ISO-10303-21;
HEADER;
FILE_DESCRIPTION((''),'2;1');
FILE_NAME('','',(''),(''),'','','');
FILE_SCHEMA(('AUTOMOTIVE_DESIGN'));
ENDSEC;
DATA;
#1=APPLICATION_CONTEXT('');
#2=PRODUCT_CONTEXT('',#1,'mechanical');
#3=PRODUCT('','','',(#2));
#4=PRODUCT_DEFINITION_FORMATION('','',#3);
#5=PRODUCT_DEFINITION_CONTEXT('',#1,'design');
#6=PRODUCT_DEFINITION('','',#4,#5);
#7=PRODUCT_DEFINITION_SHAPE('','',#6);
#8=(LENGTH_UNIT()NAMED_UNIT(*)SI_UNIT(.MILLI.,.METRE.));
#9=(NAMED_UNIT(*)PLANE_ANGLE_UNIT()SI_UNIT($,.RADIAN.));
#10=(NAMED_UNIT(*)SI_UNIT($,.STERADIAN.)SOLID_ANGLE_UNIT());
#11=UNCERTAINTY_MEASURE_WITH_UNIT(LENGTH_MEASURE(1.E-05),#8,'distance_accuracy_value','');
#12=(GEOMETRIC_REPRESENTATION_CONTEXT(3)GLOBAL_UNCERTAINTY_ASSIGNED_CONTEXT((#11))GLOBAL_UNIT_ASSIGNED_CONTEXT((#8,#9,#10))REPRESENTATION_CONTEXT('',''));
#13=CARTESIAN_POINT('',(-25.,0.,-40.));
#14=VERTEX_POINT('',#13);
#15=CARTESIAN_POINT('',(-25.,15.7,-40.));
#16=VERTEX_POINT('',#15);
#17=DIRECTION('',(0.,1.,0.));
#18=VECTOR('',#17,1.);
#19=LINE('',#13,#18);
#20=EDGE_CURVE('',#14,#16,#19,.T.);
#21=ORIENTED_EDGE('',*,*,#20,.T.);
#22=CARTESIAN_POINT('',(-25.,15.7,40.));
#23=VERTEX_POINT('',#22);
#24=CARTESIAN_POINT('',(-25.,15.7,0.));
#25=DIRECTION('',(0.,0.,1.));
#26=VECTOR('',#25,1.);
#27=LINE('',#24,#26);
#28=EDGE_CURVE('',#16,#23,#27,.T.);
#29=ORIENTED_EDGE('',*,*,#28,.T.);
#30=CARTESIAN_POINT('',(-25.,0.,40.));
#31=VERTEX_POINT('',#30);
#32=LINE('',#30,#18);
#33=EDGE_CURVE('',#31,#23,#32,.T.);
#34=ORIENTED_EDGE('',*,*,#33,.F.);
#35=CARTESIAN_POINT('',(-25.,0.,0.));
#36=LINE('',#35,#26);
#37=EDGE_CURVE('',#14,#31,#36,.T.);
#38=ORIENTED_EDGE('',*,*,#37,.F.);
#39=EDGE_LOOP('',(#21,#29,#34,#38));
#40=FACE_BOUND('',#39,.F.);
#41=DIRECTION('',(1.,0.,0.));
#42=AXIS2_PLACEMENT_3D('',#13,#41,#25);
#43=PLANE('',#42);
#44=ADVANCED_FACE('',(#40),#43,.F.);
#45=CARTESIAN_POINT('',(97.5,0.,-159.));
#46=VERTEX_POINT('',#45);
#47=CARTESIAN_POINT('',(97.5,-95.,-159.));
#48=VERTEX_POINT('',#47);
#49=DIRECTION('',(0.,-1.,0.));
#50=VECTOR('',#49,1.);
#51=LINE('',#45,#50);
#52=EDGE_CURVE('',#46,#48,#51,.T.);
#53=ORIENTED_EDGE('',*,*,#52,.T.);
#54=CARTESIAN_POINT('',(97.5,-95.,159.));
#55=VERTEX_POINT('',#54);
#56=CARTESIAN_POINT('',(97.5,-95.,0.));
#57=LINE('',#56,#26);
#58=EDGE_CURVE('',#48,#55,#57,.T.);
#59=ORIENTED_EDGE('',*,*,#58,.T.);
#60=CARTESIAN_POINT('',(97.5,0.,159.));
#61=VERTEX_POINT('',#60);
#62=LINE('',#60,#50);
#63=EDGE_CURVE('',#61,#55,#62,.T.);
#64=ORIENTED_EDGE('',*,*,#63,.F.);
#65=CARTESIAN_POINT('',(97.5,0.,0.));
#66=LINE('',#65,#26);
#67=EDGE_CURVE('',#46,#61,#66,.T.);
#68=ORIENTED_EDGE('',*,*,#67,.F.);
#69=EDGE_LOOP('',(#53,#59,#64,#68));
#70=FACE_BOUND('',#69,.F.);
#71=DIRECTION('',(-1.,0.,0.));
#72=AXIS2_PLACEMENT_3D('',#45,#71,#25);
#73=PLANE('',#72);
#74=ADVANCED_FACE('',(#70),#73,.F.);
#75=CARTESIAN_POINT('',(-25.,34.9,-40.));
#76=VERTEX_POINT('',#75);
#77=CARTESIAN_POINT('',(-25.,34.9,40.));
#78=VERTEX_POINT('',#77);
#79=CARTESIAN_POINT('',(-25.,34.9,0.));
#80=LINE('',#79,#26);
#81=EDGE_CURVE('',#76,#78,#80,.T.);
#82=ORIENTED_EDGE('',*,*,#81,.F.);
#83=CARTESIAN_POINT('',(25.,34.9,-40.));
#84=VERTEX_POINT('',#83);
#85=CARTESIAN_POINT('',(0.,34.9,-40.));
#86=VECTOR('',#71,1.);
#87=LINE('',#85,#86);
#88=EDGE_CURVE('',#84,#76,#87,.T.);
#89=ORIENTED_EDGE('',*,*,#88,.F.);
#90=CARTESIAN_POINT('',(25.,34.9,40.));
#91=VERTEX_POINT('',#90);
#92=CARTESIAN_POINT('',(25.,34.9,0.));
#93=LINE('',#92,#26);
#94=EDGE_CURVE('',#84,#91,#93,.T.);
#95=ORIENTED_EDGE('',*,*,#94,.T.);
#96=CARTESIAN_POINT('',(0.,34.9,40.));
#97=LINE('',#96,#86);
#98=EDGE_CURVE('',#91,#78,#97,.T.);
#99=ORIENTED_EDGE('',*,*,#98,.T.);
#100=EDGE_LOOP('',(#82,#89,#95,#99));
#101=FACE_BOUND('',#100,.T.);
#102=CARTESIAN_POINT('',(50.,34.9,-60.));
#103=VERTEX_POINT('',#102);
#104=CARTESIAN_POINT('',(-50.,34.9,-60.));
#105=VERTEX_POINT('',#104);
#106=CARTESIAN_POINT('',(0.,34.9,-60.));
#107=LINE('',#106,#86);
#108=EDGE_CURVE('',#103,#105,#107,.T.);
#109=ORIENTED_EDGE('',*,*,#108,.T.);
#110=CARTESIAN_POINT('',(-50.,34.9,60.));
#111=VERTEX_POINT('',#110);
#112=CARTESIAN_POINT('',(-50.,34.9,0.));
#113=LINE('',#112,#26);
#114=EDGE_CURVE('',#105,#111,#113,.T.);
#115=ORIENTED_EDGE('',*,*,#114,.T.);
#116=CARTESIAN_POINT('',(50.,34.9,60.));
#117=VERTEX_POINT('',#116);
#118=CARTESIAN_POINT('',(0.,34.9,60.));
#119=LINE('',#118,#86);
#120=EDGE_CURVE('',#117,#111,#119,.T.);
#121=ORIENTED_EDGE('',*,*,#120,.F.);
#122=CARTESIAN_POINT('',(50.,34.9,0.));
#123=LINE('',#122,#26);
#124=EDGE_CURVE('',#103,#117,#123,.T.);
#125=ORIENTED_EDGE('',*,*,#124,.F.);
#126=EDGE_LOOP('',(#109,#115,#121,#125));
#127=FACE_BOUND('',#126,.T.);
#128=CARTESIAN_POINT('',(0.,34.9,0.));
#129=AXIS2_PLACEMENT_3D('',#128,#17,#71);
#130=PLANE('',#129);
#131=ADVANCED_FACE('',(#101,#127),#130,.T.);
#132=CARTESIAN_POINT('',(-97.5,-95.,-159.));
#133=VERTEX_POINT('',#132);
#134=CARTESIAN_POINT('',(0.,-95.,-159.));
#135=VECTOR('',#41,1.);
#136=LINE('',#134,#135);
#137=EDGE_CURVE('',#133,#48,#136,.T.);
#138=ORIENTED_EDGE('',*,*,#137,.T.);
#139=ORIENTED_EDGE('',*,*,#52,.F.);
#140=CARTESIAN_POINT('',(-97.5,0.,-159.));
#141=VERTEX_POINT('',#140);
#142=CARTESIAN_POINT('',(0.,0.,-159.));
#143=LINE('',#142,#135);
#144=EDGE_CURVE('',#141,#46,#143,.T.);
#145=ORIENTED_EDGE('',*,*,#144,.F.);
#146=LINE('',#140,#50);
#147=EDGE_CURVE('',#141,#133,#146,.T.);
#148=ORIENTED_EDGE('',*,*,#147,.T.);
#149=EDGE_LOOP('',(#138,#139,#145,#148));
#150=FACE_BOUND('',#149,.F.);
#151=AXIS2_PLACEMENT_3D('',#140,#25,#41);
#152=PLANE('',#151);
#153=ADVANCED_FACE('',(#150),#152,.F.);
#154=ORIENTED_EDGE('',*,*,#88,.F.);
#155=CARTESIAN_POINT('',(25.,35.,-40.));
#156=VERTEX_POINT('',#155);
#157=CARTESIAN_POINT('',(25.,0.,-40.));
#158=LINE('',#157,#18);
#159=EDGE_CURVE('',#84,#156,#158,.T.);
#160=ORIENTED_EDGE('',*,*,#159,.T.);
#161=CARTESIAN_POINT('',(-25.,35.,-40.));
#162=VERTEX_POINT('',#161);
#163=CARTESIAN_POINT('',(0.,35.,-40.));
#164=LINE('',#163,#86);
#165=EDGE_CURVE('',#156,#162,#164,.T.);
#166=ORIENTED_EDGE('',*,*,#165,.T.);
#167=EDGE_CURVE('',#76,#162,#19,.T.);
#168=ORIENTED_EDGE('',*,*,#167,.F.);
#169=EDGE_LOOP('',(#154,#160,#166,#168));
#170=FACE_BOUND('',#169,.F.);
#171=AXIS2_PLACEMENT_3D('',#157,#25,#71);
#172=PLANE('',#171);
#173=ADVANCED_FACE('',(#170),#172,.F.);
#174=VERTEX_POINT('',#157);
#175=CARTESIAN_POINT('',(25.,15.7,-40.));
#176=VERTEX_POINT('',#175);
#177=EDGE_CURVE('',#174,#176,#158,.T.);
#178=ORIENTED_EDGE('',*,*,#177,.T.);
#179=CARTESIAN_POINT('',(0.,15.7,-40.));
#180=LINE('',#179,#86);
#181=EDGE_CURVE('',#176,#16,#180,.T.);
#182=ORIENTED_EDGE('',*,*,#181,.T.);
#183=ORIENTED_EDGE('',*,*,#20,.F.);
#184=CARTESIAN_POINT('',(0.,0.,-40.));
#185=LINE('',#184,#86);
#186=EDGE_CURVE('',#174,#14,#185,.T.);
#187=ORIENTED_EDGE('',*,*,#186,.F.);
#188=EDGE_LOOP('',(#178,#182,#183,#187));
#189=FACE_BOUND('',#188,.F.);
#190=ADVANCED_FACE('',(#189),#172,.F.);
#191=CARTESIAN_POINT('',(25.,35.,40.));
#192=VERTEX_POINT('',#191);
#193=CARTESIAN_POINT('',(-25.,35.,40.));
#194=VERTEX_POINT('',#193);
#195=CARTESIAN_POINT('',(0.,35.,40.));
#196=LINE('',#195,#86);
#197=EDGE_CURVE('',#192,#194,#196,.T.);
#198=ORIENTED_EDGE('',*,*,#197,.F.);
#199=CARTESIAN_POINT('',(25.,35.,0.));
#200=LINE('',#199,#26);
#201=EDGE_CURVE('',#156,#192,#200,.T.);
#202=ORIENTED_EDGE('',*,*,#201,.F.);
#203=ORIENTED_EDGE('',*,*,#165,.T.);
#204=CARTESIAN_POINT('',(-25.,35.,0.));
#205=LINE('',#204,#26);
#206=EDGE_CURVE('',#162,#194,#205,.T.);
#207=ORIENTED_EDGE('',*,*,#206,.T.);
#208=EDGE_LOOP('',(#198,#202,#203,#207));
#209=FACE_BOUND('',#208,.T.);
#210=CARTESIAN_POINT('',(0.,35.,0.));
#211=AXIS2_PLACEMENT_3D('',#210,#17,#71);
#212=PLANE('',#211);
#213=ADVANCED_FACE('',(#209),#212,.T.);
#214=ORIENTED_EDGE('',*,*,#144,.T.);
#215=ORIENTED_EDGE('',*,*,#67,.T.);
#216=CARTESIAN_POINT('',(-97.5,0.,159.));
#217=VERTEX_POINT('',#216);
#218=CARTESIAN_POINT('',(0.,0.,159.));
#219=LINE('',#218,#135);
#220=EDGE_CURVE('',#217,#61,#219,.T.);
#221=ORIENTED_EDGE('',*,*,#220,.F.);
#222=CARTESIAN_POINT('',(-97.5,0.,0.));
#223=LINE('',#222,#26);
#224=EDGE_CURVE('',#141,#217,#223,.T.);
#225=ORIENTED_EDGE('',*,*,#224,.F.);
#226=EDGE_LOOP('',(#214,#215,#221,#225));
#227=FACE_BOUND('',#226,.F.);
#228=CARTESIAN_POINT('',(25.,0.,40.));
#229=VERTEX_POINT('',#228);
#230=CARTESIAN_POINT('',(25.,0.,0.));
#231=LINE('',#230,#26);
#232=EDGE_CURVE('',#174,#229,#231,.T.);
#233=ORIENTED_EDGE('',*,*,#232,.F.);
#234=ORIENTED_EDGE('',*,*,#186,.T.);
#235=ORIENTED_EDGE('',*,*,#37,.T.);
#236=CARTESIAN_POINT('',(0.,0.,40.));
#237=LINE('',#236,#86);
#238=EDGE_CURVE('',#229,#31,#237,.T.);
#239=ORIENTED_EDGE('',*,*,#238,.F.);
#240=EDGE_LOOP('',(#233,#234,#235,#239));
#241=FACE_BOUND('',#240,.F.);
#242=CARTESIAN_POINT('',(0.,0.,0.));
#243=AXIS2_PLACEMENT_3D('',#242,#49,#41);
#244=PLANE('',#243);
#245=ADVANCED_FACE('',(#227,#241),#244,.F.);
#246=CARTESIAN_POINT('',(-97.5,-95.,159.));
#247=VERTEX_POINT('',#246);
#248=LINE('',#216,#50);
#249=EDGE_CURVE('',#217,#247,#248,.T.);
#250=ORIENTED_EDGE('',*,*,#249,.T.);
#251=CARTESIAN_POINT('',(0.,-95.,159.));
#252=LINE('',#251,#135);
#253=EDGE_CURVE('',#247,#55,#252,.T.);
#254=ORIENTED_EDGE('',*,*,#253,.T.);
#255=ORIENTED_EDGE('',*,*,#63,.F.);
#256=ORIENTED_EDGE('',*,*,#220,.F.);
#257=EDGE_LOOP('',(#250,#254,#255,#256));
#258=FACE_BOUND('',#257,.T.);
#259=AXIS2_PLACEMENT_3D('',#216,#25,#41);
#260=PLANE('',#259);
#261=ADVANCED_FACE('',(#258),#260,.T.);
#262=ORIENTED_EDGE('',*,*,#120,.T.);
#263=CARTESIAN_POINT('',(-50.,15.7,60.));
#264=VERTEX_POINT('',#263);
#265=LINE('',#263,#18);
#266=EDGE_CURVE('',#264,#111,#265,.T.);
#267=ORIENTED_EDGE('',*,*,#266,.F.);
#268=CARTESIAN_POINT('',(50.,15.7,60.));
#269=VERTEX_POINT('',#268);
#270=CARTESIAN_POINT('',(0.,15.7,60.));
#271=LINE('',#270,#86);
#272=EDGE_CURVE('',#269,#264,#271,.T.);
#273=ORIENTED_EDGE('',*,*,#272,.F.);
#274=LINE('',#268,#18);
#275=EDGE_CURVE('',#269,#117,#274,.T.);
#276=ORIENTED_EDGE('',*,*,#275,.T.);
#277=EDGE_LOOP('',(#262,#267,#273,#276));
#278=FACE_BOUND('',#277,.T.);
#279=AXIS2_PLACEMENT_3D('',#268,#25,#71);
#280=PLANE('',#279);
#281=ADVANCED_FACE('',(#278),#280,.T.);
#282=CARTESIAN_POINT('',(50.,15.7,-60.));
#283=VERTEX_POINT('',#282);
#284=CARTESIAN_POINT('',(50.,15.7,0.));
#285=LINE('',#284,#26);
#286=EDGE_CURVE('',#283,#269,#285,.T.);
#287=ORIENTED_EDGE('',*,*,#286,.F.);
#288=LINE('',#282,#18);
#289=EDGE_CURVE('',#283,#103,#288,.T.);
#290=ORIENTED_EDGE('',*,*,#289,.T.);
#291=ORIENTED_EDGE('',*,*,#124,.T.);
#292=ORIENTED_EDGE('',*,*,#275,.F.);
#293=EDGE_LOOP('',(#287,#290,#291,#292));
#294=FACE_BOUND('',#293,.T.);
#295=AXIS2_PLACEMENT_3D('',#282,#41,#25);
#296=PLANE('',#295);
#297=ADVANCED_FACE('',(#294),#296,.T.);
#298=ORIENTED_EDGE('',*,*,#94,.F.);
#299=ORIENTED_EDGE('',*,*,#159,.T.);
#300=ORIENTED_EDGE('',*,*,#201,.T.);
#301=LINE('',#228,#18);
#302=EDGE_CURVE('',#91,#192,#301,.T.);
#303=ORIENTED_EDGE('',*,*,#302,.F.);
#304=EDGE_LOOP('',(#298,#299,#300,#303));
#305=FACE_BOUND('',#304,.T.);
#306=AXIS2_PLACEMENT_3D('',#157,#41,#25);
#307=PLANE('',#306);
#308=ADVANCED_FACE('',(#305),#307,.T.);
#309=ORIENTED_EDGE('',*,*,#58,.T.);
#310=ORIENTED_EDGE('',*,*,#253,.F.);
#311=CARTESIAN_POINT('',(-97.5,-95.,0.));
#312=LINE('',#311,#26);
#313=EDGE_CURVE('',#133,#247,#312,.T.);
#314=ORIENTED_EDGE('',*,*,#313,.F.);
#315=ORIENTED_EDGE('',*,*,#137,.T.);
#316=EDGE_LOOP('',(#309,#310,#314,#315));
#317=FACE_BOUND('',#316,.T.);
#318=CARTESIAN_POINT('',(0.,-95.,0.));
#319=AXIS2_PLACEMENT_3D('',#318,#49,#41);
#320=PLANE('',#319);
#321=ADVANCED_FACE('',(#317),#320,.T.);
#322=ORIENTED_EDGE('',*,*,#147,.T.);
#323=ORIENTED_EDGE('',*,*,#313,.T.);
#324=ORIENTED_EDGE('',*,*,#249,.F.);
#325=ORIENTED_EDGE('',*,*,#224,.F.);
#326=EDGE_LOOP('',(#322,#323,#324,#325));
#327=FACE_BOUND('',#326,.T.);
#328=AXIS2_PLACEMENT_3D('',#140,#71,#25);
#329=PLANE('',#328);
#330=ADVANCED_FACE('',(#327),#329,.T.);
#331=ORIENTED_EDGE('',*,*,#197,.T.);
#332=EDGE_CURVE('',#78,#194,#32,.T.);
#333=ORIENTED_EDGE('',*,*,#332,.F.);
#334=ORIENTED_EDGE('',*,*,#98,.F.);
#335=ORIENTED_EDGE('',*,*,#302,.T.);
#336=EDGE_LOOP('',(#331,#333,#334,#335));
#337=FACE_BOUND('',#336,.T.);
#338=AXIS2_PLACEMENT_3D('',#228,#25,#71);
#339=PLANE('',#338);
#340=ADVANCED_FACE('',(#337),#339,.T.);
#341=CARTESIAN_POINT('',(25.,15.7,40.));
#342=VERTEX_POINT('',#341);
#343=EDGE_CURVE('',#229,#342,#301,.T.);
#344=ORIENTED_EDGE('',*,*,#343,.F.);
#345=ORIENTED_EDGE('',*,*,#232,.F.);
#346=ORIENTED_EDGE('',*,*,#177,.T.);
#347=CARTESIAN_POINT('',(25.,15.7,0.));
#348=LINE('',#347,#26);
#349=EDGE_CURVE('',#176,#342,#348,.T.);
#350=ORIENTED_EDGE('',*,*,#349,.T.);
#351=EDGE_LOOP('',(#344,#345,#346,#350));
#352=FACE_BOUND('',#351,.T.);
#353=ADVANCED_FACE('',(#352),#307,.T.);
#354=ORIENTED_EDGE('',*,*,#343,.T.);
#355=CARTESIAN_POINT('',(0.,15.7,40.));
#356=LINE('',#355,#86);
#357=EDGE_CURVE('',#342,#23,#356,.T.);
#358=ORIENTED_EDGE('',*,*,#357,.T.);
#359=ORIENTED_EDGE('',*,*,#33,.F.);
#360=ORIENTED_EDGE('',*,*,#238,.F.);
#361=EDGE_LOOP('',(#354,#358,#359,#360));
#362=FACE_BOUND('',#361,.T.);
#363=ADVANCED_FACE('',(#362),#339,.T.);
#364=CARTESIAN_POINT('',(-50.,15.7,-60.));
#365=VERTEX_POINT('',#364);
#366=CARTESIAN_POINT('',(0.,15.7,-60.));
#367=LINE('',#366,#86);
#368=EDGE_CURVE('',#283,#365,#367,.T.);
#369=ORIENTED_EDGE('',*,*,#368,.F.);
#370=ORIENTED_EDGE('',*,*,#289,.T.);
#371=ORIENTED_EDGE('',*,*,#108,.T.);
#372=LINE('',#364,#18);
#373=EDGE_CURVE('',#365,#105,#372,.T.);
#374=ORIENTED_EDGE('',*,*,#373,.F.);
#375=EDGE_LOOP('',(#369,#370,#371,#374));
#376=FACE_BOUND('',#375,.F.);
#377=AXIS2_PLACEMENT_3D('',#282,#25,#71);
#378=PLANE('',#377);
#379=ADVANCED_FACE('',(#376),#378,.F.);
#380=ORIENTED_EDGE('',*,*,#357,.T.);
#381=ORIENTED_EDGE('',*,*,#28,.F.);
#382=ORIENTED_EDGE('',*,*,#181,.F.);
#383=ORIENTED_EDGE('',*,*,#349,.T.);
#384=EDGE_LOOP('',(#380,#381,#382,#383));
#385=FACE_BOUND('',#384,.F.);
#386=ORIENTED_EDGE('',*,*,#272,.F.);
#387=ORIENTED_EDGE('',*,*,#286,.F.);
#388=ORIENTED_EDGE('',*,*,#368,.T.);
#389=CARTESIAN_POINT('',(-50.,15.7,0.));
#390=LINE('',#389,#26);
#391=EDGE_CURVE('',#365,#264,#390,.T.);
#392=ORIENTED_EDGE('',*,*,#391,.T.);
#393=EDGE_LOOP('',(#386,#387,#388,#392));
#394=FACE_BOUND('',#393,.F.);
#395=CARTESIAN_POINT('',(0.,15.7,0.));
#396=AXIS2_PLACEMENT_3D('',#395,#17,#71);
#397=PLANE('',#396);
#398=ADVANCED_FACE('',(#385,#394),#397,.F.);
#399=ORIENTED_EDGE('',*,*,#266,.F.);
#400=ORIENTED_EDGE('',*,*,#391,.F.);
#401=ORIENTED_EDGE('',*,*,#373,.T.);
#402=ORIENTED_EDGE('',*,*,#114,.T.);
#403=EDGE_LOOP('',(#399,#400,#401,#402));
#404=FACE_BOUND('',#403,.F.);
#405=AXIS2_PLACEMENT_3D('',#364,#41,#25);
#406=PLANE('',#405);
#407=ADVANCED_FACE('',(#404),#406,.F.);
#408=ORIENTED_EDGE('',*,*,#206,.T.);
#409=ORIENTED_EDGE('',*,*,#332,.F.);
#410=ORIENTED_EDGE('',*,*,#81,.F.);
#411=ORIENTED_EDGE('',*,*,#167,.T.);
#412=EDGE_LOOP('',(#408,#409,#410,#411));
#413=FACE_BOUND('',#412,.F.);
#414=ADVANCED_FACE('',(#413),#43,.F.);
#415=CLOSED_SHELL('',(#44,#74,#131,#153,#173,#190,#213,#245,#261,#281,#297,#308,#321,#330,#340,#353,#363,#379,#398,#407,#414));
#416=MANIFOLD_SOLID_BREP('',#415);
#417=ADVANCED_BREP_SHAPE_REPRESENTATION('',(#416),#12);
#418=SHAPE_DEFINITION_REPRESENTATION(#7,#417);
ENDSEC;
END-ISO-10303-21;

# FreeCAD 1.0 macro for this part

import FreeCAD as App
import Part
import Sketcher
from FreeCAD import Vector
Q = App.Units.Quantity

doc = App.newDocument("Part")
params = doc.addObject("Spreadsheet::Sheet", "Params")
for row, (alias, value) in enumerate([
    ("sketch1_width", "195 mm"),
    ("sketch1_height", "318 mm"),
    ("pad1_length", "95 mm"),
    ("sketch2_width", "50 mm"),
    ("sketch2_height", "80 mm"),
    ("pad2_length", "35 mm"),
    ("sketch3_width", "100 mm"),
    ("sketch3_width2", "50 mm"),
    ("sketch3_height", "120 mm"),
    ("sketch3_height2", "80 mm"),
    ("pad3_length", "19.2 mm"),
], start=1):
    params.set(f"A{row}", alias)
    params.set(f"B{row}", "=" + value)
    params.setAlias(f"B{row}", alias)

body = doc.addObject("PartDesign::Body", "Body")

# Sketch on XZ plane
sketch1 = doc.addObject("Sketcher::SketchObject", "Sketch")
body.addObject(sketch1)
sketch1.AttachmentSupport = (doc.XZ_Plane, [""])
sketch1.MapMode = "FlatFace"
sketch1.addGeometry([
    Part.LineSegment(Vector(-98, 159, 0), Vector(-98, -159, 0)),
    Part.LineSegment(Vector(-98, -159, 0), Vector(98, -159, 0)),
    Part.LineSegment(Vector(98, -159, 0), Vector(98, 159, 0)),
    Part.LineSegment(Vector(98, 159, 0), Vector(-98, 159, 0)),
], False)
sketch1.addConstraint([
    Sketcher.Constraint("Coincident", 0, 2, 1, 1),
    Sketcher.Constraint("Coincident", 1, 2, 2, 1),
    Sketcher.Constraint("Coincident", 2, 2, 3, 1),
    Sketcher.Constraint("Coincident", 3, 2, 0, 1),
    Sketcher.Constraint("Vertical", 0),
    Sketcher.Constraint("Horizontal", 1),
    Sketcher.Constraint("Vertical", 2),
    Sketcher.Constraint("Horizontal", 3),
    Sketcher.Constraint("Symmetric", 0, 2, 2, 2, -1, 1),
    Sketcher.Constraint("DistanceX", 1, 1, 1, 2, Q("195 mm")),
    Sketcher.Constraint("DistanceY", 0, 2, 0, 1, Q("318 mm")),
])
sketch1.setExpression("Constraints[9]", "Params.sketch1_width")
sketch1.setExpression("Constraints[10]", "Params.sketch1_height")
pad1 = doc.addObject("PartDesign::Pad", "Pad")
body.addObject(pad1)
pad1.Profile = sketch1
pad1.setExpression("Length", "Params.pad1_length")

# Sketch on XZ plane
sketch2 = doc.addObject("Sketcher::SketchObject", "Sketch001")
body.addObject(sketch2)
sketch2.AttachmentSupport = (doc.XZ_Plane, [""])
sketch2.MapMode = "FlatFace"
sketch2.addGeometry([
    Part.LineSegment(Vector(25, 40, 0), Vector(25, -40, 0)),
    Part.LineSegment(Vector(25, -40, 0), Vector(-25, -40, 0)),
    Part.LineSegment(Vector(-25, -40, 0), Vector(-25, 40, 0)),
    Part.LineSegment(Vector(-25, 40, 0), Vector(25, 40, 0)),
], False)
sketch2.addConstraint([
    Sketcher.Constraint("Coincident", 0, 2, 1, 1),
    Sketcher.Constraint("Coincident", 1, 2, 2, 1),
    Sketcher.Constraint("Coincident", 2, 2, 3, 1),
    Sketcher.Constraint("Coincident", 3, 2, 0, 1),
    Sketcher.Constraint("Vertical", 0),
    Sketcher.Constraint("Horizontal", 1),
    Sketcher.Constraint("Vertical", 2),
    Sketcher.Constraint("Horizontal", 3),
    Sketcher.Constraint("Symmetric", 0, 2, 2, 2, -1, 1),
    Sketcher.Constraint("DistanceX", 1, 2, 1, 1, Q("50 mm")),
    Sketcher.Constraint("DistanceY", 0, 2, 0, 1, Q("80 mm")),
])
sketch2.setExpression("Constraints[9]", "Params.sketch2_width")
sketch2.setExpression("Constraints[10]", "Params.sketch2_height")
pad2 = doc.addObject("PartDesign::Pad", "Pad001")
body.addObject(pad2)
pad2.Profile = sketch2
pad2.setExpression("Length", "Params.pad2_length")
pad2.Reversed = True

# Sketch on XZ plane
sketch3 = doc.addObject("Sketcher::SketchObject", "Sketch002")
body.addObject(sketch3)
sketch3.AttachmentSupport = (doc.XZ_Plane, [""])
sketch3.MapMode = "FlatFace"
sketch3.AttachmentOffset = App.Placement(Vector(0, 0, -15.7), App.Rotation())
sketch3.addGeometry([
    Part.LineSegment(Vector(50, 60, 0), Vector(50, -60, 0)),  # 0
    Part.LineSegment(Vector(50, -60, 0), Vector(-50, -60, 0)),  # 1
    Part.LineSegment(Vector(-50, -60, 0), Vector(-50, 60, 0)),  # 2
    Part.LineSegment(Vector(-50, 60, 0), Vector(50, 60, 0)),  # 3
    Part.LineSegment(Vector(-25, -40, 0), Vector(25, -40, 0)),  # 4
    Part.LineSegment(Vector(25, -40, 0), Vector(25, 40, 0)),  # 5
    Part.LineSegment(Vector(25, 40, 0), Vector(-25, 40, 0)),  # 6
    Part.LineSegment(Vector(-25, 40, 0), Vector(-25, -40, 0)),  # 7
], False)
sketch3.addConstraint([
    Sketcher.Constraint("Coincident", 0, 2, 1, 1),
    Sketcher.Constraint("Coincident", 1, 2, 2, 1),
    Sketcher.Constraint("Coincident", 2, 2, 3, 1),
    Sketcher.Constraint("Coincident", 3, 2, 0, 1),
    Sketcher.Constraint("Coincident", 4, 2, 5, 1),
    Sketcher.Constraint("Coincident", 5, 2, 6, 1),
    Sketcher.Constraint("Coincident", 6, 2, 7, 1),
    Sketcher.Constraint("Coincident", 7, 2, 4, 1),
    Sketcher.Constraint("Vertical", 0),
    Sketcher.Constraint("Horizontal", 1),
    Sketcher.Constraint("Vertical", 2),
    Sketcher.Constraint("Horizontal", 3),
    Sketcher.Constraint("Horizontal", 4),
    Sketcher.Constraint("Vertical", 5),
    Sketcher.Constraint("Horizontal", 6),
    Sketcher.Constraint("Vertical", 7),
    Sketcher.Constraint("Symmetric", 0, 2, 2, 2, -1, 1),
    Sketcher.Constraint("Symmetric", 4, 2, 6, 2, -1, 1),
    Sketcher.Constraint("DistanceX", 1, 2, 1, 1, Q("100 mm")),
    Sketcher.Constraint("DistanceX", 4, 1, 4, 2, Q("50 mm")),
    Sketcher.Constraint("DistanceY", 0, 2, 0, 1, Q("120 mm")),
    Sketcher.Constraint("DistanceY", 5, 1, 5, 2, Q("80 mm")),
])
sketch3.setExpression("Constraints[18]", "Params.sketch3_width")
sketch3.setExpression("Constraints[19]", "Params.sketch3_width2")
sketch3.setExpression("Constraints[20]", "Params.sketch3_height")
sketch3.setExpression("Constraints[21]", "Params.sketch3_height2")
pad3 = doc.addObject("PartDesign::Pad", "Pad002")
body.addObject(pad3)
pad3.Profile = sketch3
pad3.setExpression("Length", "Params.pad3_length")
pad3.Reversed = True

doc.recompute()
